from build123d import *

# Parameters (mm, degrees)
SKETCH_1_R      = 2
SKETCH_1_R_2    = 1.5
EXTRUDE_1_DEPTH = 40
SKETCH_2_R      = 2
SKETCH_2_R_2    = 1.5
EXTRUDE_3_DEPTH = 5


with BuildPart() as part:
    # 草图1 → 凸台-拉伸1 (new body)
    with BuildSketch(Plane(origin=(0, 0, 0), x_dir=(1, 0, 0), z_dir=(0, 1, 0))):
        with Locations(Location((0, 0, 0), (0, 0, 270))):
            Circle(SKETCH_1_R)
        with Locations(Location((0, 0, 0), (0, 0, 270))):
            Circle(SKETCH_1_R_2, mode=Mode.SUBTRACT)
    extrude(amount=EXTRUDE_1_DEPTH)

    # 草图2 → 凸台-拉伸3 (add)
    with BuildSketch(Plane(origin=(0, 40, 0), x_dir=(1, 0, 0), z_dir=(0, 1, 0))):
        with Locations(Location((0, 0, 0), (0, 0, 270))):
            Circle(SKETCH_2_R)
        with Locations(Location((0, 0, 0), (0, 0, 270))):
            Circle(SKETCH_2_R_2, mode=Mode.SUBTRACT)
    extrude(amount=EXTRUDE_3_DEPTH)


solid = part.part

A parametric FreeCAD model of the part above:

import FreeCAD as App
import Part
import Sketcher

V = App.Vector
Q = App.Units.Quantity

doc = App.newDocument("Part")
params = doc.addObject("Spreadsheet::Sheet", "Params")
for row, (alias, value) in enumerate([
    ("sketch1_diameter", "4 mm"),
    ("sketch1_diameter2", "3 mm"),
    ("pad1_length", "40 mm"),
    ("sketch2_diameter", "4 mm"),
    ("sketch2_diameter2", "3 mm"),
    ("pad2_length", "5 mm"),
], start=1):
    params.set(f"A{row}", alias)
    params.set(f"B{row}", "=" + value)
    params.setAlias(f"B{row}", alias)

body = doc.addObject("PartDesign::Body", "Body")

sketch1 = body.newObject("Sketcher::SketchObject", "Sketch")
sketch1.AttachmentSupport = (doc.getObject("XZ_Plane"), [""])
sketch1.MapMode = "FlatFace"
sketch1.addGeometry([
    Part.Circle(V(0, 0, 0), V(0, 0, 1), 2),
    Part.Circle(V(0, 0, 0), V(0, 0, 1), 1.5),
], False)
sketch1.addConstraint([
    Sketcher.Constraint("Coincident", 0, 3, -1, 1),
    Sketcher.Constraint("Coincident", 1, 3, -1, 1),
    Sketcher.Constraint("Diameter", 0, Q("4 mm")),
    Sketcher.Constraint("Diameter", 1, Q("3 mm")),
])
sketch1.setExpression("Constraints[2]", "Params.sketch1_diameter")
sketch1.setExpression("Constraints[3]", "Params.sketch1_diameter2")
pad1 = body.newObject("PartDesign::Pad", "Pad")
pad1.Profile = sketch1
pad1.setExpression("Length", "Params.pad1_length")
pad1.Reversed = True

sketch2 = body.newObject("Sketcher::SketchObject", "Sketch001")
sketch2.AttachmentSupport = (doc.getObject("XZ_Plane"), [""])
sketch2.MapMode = "FlatFace"
sketch2.AttachmentOffset = App.Placement(V(0, 0, -40), App.Rotation())
sketch2.addGeometry([
    Part.Circle(V(0, 0, 0), V(0, 0, 1), 2),
    Part.Circle(V(0, 0, 0), V(0, 0, 1), 1.5),
], False)
sketch2.addConstraint([
    Sketcher.Constraint("Coincident", 0, 3, -1, 1),
    Sketcher.Constraint("Coincident", 1, 3, -1, 1),
    Sketcher.Constraint("Diameter", 0, Q("4 mm")),
    Sketcher.Constraint("Diameter", 1, Q("3 mm")),
])
sketch2.setExpression("Constraints[2]", "Params.sketch2_diameter")
sketch2.setExpression("Constraints[3]", "Params.sketch2_diameter2")
pad2 = body.newObject("PartDesign::Pad", "Pad001")
pad2.Profile = sketch2
pad2.setExpression("Length", "Params.pad2_length")
pad2.Reversed = True

doc.recompute()
